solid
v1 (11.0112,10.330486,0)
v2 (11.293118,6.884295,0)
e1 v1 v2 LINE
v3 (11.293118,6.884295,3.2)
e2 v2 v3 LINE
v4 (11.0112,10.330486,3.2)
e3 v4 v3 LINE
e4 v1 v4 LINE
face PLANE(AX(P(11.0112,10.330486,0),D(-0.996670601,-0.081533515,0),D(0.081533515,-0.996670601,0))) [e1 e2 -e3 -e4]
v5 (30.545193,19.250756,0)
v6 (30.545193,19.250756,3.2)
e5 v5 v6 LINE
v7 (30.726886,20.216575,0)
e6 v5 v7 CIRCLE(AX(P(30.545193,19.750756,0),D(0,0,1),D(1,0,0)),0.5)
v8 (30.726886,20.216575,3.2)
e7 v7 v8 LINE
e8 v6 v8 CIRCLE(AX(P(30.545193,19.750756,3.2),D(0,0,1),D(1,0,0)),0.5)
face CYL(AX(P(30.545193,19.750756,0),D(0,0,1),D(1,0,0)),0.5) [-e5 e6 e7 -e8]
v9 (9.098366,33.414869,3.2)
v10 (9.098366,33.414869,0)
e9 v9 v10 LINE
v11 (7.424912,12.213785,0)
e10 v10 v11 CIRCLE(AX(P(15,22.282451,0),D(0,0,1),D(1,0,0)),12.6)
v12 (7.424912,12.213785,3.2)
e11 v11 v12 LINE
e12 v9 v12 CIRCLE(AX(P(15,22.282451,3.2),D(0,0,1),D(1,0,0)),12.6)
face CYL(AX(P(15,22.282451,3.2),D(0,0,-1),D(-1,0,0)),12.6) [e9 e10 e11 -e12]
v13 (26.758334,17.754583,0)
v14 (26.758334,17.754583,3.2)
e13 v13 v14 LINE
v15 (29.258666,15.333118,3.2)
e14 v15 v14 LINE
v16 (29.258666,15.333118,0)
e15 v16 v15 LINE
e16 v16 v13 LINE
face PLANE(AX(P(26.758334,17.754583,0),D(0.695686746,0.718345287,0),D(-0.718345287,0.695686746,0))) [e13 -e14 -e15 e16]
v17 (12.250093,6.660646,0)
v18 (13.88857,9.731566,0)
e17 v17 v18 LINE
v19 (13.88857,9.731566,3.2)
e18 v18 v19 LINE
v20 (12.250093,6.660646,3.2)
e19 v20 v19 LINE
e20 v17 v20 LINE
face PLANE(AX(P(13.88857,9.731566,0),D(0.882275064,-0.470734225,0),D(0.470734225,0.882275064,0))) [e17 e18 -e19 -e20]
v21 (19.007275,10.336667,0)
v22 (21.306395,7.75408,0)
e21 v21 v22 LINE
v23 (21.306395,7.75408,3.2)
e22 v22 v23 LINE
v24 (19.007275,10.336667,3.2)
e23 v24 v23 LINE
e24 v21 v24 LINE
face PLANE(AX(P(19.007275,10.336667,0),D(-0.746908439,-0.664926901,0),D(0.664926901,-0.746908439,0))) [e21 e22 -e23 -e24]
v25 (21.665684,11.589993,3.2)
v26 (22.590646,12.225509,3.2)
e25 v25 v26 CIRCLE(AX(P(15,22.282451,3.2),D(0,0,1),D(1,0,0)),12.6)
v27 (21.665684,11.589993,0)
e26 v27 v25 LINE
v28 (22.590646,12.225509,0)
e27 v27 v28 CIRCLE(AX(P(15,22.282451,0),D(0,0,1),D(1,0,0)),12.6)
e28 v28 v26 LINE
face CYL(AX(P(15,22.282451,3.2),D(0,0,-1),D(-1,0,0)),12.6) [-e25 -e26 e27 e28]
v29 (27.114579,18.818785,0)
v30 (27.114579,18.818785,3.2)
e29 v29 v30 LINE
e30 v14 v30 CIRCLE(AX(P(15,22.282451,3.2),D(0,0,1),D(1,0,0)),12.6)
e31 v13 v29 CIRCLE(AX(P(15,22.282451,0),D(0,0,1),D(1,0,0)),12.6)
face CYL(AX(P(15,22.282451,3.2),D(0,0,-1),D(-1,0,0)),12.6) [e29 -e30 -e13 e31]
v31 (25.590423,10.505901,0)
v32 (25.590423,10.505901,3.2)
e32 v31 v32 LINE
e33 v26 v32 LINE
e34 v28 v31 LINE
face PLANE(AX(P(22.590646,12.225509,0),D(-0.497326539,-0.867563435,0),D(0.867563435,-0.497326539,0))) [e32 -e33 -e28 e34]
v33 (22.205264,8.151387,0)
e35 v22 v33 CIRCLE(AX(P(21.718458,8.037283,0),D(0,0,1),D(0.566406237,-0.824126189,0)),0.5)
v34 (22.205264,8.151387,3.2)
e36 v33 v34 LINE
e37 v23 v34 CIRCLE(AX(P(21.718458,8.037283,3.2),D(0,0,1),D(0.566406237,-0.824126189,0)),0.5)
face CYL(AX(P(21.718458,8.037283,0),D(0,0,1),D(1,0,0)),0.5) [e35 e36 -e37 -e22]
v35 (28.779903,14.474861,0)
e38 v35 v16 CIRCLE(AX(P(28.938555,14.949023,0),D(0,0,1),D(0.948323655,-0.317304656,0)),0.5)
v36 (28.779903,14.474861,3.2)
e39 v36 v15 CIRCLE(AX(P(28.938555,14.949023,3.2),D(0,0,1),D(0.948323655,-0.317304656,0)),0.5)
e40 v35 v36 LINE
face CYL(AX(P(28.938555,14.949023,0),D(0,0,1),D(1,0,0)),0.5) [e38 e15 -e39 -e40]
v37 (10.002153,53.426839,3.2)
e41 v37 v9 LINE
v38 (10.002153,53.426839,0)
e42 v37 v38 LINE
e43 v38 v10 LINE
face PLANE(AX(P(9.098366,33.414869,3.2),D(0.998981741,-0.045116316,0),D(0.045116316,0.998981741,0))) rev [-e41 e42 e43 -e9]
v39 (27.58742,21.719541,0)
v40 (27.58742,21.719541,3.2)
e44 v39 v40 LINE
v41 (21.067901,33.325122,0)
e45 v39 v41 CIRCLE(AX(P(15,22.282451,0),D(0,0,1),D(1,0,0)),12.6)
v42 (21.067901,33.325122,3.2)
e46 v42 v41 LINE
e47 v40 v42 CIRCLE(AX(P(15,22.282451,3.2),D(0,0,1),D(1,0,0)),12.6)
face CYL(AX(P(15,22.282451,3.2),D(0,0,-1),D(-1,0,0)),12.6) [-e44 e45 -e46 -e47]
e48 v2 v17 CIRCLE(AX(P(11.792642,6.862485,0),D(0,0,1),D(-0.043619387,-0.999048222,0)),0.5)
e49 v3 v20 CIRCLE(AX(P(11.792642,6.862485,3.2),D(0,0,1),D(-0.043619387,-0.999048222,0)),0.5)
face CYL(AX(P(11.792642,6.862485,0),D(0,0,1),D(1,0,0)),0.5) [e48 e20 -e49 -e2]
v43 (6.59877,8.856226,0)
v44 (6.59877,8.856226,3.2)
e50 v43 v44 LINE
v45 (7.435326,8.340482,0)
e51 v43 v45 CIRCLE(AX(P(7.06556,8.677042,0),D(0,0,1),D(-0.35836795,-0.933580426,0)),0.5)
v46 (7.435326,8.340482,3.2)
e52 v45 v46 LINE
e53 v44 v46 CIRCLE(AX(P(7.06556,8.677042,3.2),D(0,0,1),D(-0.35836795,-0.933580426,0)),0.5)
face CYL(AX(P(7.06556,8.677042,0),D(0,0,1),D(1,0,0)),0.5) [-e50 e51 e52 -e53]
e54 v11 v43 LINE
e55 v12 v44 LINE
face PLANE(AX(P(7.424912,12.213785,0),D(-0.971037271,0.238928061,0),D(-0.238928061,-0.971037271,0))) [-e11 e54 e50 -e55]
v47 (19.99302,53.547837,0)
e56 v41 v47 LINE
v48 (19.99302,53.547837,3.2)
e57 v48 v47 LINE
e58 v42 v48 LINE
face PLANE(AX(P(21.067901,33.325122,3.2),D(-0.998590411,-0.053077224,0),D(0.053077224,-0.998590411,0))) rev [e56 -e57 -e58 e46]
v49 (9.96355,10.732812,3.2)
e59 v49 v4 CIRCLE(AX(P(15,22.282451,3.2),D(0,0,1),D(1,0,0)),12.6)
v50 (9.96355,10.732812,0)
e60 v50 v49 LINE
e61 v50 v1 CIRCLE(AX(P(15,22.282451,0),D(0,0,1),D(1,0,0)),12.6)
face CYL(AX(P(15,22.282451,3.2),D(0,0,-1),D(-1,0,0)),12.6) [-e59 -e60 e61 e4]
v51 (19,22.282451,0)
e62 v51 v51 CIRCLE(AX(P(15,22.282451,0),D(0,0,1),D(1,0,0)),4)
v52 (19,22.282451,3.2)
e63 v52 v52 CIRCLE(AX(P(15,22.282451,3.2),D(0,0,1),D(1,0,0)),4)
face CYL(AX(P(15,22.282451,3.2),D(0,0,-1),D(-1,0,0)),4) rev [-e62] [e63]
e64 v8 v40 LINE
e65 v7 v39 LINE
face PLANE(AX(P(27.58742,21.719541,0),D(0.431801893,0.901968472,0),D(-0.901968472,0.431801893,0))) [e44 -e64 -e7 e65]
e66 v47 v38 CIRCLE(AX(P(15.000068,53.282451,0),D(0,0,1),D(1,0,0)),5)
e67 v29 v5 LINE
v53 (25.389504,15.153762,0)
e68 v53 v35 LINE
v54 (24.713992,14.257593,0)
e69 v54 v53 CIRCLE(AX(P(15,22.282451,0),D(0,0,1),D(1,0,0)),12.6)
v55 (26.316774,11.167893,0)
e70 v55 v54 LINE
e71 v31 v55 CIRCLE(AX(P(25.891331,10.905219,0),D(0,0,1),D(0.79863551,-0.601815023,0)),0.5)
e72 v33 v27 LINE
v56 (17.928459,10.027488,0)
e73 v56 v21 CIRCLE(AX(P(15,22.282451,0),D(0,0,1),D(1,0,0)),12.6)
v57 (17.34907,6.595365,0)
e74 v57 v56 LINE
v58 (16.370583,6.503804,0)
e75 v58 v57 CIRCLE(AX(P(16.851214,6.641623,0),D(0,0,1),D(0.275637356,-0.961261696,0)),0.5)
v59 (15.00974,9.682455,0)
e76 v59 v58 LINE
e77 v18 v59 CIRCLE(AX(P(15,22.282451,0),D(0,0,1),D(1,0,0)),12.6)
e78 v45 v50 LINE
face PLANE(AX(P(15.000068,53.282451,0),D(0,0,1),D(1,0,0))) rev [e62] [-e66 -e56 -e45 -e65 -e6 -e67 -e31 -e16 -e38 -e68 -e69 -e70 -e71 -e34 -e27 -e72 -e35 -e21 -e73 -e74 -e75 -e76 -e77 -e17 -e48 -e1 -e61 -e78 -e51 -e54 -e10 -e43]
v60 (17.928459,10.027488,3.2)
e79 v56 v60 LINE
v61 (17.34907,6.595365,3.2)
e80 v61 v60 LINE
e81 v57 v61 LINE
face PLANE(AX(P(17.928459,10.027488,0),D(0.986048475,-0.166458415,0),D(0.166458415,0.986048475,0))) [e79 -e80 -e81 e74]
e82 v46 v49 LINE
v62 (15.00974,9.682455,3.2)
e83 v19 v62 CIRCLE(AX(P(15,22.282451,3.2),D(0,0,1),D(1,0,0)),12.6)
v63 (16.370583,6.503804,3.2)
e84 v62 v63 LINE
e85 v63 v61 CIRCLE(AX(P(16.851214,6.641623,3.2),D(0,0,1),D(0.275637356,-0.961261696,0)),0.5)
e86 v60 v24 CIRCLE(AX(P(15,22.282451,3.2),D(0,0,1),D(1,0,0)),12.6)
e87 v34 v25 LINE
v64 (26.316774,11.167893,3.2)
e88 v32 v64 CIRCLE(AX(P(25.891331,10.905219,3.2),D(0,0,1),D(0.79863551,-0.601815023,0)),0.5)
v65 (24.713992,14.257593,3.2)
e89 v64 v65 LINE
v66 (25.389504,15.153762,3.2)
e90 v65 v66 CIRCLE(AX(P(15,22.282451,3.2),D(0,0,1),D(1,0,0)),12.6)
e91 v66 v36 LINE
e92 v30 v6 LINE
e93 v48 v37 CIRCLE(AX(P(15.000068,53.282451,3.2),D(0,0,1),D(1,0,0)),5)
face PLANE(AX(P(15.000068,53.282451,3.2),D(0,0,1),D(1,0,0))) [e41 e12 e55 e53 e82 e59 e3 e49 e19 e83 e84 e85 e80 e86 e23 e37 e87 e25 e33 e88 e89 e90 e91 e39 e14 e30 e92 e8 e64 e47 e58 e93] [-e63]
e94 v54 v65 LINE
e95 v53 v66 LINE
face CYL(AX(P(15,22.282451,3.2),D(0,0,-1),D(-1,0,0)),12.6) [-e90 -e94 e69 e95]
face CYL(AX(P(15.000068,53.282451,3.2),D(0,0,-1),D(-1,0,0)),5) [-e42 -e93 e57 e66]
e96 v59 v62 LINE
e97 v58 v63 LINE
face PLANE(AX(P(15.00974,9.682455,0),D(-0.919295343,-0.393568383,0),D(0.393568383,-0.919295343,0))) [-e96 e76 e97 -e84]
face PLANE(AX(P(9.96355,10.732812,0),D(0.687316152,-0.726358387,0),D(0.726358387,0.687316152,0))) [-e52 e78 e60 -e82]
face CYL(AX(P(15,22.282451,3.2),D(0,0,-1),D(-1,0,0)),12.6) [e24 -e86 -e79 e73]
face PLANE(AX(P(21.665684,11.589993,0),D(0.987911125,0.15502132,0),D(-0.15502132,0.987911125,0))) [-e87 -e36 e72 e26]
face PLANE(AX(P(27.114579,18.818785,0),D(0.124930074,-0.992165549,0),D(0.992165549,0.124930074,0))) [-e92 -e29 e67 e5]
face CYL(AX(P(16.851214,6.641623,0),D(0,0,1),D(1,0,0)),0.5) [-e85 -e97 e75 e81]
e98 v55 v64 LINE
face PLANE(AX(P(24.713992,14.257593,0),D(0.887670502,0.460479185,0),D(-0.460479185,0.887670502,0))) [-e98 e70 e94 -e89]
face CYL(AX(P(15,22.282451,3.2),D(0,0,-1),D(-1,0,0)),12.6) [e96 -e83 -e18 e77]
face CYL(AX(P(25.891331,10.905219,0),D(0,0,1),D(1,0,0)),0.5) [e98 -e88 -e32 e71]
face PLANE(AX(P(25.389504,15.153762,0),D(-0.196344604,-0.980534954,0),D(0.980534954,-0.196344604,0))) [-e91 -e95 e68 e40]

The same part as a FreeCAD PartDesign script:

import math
import FreeCAD as App
import Part
import Sketcher

V = App.Vector

doc = App.newDocument("Part")
params = doc.addObject("Spreadsheet::Sheet", "Params")
for row, (alias, value) in enumerate([
    ("sketch1_diameter", "8 mm"),
    ("sketch1_radius", "5 mm"),
    ("sketch1_radius2", "12.6 mm"),
    ("pad1_length", "3.2 mm"),
    ("sketch2_radius", "12.6 mm"),
    ("sketch2_radius2", "0.5 mm"),
    ("pad2_length", "3.2 mm"),
], start=1):
    params.set(f"A{row}", alias)
    params.set(f"B{row}", "=" + value)
    params.setAlias(f"B{row}", alias)

body = doc.addObject("PartDesign::Body", "Body")

# Sketch on XY plane
sketch1 = body.newObject("Sketcher::SketchObject", "Sketch")
sketch1.AttachmentSupport = (doc.getObject("XY_Plane"), [""])
sketch1.MapMode = "FlatFace"
sketch1.addGeometry(Part.LineSegment(V(21.067901, 33.325122, 0), V(19.99302, 53.547837, 0)), False)
sketch1.addGeometry(Part.ArcOfCircle(Part.Circle(V(15.000068, 53.282451, 0), V(0, 0, 1), 5), math.radians(3.042531), math.radians(178.345212)), False)
sketch1.addGeometry(Part.LineSegment(V(10.002153, 53.426839, 0), V(9.098366, 33.414869, 0)), False)
sketch1.addGeometry(Part.ArcOfCircle(Part.Circle(V(15, 22.282451, 0), V(0, 0, 1), 12.6), math.radians(117.929425), math.radians(421.211393)), False)
sketch1.addGeometry(Part.Circle(V(15, 22.282451, 0), V(0, 0, 1), 4), False)
sketch1.addConstraint(Sketcher.Constraint("Tangent", 0, 2, 1, 1))
sketch1.addConstraint(Sketcher.Constraint("Coincident", 1, 2, 2, 1))
sketch1.addConstraint(Sketcher.Constraint("Coincident", 2, 2, 3, 1))
sketch1.addConstraint(Sketcher.Constraint("Coincident", 3, 2, 0, 1))
sketch1.addConstraint(Sketcher.Constraint("Coincident", 4, 3, 3, 3))
sketch1.addConstraint(Sketcher.Constraint("Diameter", 4, 8.0))
sketch1.addConstraint(Sketcher.Constraint("Radius", 1, 5.0))
sketch1.addConstraint(Sketcher.Constraint("Radius", 3, 12.6))
sketch1.addConstraint(Sketcher.Constraint("DistanceX", -1, 1, 3, 3, 15.0))
sketch1.addConstraint(Sketcher.Constraint("DistanceY", 3, 3, 1, 3, 31.0))
sketch1.addConstraint(Sketcher.Constraint("DistanceY", 1, 2, 0, 2, 0.120999))
sketch1.addConstraint(Sketcher.Constraint("DistanceX", -1, 1, 3, 2, 21.067901))
sketch1.addConstraint(Sketcher.Constraint("DistanceX", 2, 2, 1, 3, 5.901701))
sketch1.addConstraint(Sketcher.Constraint("Distance", 0, 20.251261))
sketch1.addConstraint(Sketcher.Constraint("DistanceY", -1, 1, 1, 3, 53.282451))
sketch1.setExpression("Constraints[5]", "Params.sketch1_diameter")
sketch1.setExpression("Constraints[6]", "Params.sketch1_radius")
sketch1.setExpression("Constraints[7]", "Params.sketch1_radius2")
pad1 = body.newObject("PartDesign::Pad", "Pad")
pad1.Profile = sketch1
pad1.setExpression("Length", "Params.pad1_length")

# Sketch on XY plane
sketch2 = body.newObject("Sketcher::SketchObject", "Sketch001")
sketch2.AttachmentSupport = (doc.getObject("XY_Plane"), [""])
sketch2.MapMode = "FlatFace"
sketch2.addGeometry(Part.LineSegment(V(30.726886, 20.216575, 0), V(27.58742, 21.719541, 0)), False)
sketch2.addGeometry(Part.ArcOfCircle(Part.Circle(V(15, 22.282451, 0), V(0, 0, 1), 12.6), math.radians(-15.955708), math.radians(-2.560567)), False)
sketch2.addGeometry(Part.LineSegment(V(27.114579, 18.818785, 0), V(30.545193, 19.250756, 0)), False)
sketch2.addGeometry(Part.ArcOfCircle(Part.Circle(V(30.545193, 19.750756, 0), V(0, 0, 1), 0.5), math.radians(-90), math.radians(68.69166)), False)
sketch2.addConstraint(Sketcher.Constraint("Coincident", 0, 2, 1, 2))
sketch2.addConstraint(Sketcher.Constraint("Coincident", 1, 1, 2, 1))
sketch2.addConstraint(Sketcher.Constraint("Coincident", 2, 2, 3, 1))
sketch2.addConstraint(Sketcher.Constraint("Coincident", 3, 2, 0, 1))
sketch2.addConstraint(Sketcher.Constraint("Vertical", 3, 3, 2, 2))
sketch2.addConstraint(Sketcher.Constraint("Radius", 1, 12.6))
sketch2.addConstraint(Sketcher.Constraint("Radius", 3, 0.5))
sketch2.addConstraint(Sketcher.Constraint("DistanceX", -1, 1, 1, 3, 15.0))
sketch2.addConstraint(Sketcher.Constraint("DistanceY", -1, 1, 1, 3, 22.282451))
sketch2.addConstraint(Sketcher.Constraint("DistanceX", -1, 1, 0, 2, 27.58742))
sketch2.addConstraint(Sketcher.Constraint("DistanceX", -1, 1, 1, 1, 27.114579))
sketch2.addConstraint(Sketcher.Constraint("DistanceY", 1, 1, 3, 3, 0.931971))
sketch2.addConstraint(Sketcher.Constraint("DistanceY", 3, 3, 3, 2, 0.465819))
sketch2.addConstraint(Sketcher.Constraint("Distance", 0, 3.480683))
sketch2.setExpression("Constraints[5]", "Params.sketch2_radius")
sketch2.setExpression("Constraints[6]", "Params.sketch2_radius2")
pad2 = body.newObject("PartDesign::Pad", "Pad001")
pad2.Profile = sketch2
pad2.setExpression("Length", "Params.pad2_length")
doc.recompute()

datumline = body.newObject("PartDesign::Line", "DatumLine")
datumline.Placement = App.Placement(V(15, 22.282451, 0), App.Rotation(V(0, 0, 1), V(0, 0, -1)))
polarpattern = body.newObject("PartDesign::PolarPattern", "PolarPattern")
polarpattern.Originals = [pad2]
polarpattern.Axis = (datumline, [""])
polarpattern.Angle = 111
polarpattern.Occurrences = 7
body.Tip = polarpattern

doc.recompute()
